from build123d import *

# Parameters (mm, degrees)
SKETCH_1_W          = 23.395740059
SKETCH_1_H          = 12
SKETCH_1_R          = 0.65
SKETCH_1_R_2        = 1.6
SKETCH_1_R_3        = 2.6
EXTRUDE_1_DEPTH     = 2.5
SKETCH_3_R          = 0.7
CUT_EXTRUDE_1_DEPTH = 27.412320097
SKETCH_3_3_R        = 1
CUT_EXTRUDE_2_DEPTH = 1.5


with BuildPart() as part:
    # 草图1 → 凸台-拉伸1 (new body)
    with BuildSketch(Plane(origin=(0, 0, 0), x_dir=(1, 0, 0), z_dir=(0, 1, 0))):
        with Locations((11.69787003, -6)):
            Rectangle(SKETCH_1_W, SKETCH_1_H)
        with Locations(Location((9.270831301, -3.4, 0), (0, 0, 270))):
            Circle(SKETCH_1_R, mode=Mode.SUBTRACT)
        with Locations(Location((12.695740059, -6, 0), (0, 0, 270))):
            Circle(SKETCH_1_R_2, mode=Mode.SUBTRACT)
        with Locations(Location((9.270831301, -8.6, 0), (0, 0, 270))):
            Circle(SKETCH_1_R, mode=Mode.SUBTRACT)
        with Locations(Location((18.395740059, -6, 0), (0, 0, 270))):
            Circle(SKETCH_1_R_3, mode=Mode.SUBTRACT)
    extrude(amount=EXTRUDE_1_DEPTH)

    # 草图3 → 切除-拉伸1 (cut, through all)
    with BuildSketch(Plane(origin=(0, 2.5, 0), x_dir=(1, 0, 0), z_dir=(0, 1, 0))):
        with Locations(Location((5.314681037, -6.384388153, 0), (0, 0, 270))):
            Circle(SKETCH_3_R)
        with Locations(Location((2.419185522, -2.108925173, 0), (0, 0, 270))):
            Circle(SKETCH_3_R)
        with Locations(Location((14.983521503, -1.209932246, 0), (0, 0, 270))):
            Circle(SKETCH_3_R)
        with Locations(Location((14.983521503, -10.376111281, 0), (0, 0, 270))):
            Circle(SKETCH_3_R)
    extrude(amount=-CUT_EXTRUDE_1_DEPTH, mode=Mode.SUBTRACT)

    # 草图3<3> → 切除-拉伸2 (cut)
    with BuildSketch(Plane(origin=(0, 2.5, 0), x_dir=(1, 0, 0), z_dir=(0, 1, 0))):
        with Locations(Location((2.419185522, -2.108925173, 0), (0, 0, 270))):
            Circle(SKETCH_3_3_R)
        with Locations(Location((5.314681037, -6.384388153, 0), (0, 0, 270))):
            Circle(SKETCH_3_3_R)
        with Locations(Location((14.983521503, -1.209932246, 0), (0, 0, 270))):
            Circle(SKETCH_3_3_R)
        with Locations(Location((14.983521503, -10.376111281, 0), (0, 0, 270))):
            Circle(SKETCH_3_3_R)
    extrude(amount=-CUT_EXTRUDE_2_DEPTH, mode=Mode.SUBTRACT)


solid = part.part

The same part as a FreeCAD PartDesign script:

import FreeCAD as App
import Part
import Sketcher

doc = App.newDocument("Part")
body = doc.addObject("PartDesign::Body", "Body")

sketch1 = body.newObject("Sketcher::SketchObject", "Sketch")
sketch1.AttachmentSupport = (doc.getObject("XZ_Plane"), [""])
sketch1.MapMode = "FlatFace"
sketch1.addGeometry(Part.LineSegment(App.Vector(0, 0, 0), App.Vector(0, 12, 0)), False)
sketch1.addGeometry(Part.LineSegment(App.Vector(0, 12, 0), App.Vector(23.4, 12, 0)), False)
sketch1.addGeometry(Part.LineSegment(App.Vector(23.4, 12, 0), App.Vector(23.4, 0, 0)), False)
sketch1.addGeometry(Part.LineSegment(App.Vector(23.4, 0, 0), App.Vector(0, 0, 0)), False)
sketch1.addGeometry(Part.Circle(App.Vector(9.3, 8.6, 0), App.Vector(0, 0, 1), 0.7), False)
sketch1.addGeometry(Part.Circle(App.Vector(12.7, 6, 0), App.Vector(0, 0, 1), 1.6), False)
sketch1.addGeometry(Part.Circle(App.Vector(18.4, 6, 0), App.Vector(0, 0, 1), 2.6), False)
sketch1.addGeometry(Part.Circle(App.Vector(9.3, 3.4, 0), App.Vector(0, 0, 1), 0.7), False)
sketch1.addConstraint(Sketcher.Constraint("Coincident", 0, 2, 1, 1))
sketch1.addConstraint(Sketcher.Constraint("Coincident", 1, 2, 2, 1))
sketch1.addConstraint(Sketcher.Constraint("Coincident", 2, 2, 3, 1))
sketch1.addConstraint(Sketcher.Constraint("Coincident", 3, 2, 0, 1))
sketch1.addConstraint(Sketcher.Constraint("Vertical", 0))
sketch1.addConstraint(Sketcher.Constraint("Horizontal", 1))
sketch1.addConstraint(Sketcher.Constraint("Vertical", 2))
sketch1.addConstraint(Sketcher.Constraint("Horizontal", 3))
sketch1.addConstraint(Sketcher.Constraint("Coincident", 3, 2, -1, 1))
sketch1.addConstraint(Sketcher.Constraint("Equal", 4, 7))
sketch1.addConstraint(Sketcher.Constraint("Horizontal", 5, 3, 6, 3))
sketch1.addConstraint(Sketcher.Constraint("Vertical", 4, 3, 7, 3))
sketch1.addConstraint(Sketcher.Constraint("Diameter", 4, 1.3))
sketch1.addConstraint(Sketcher.Constraint("Diameter", 5, 3.2))
sketch1.addConstraint(Sketcher.Constraint("Diameter", 6, 5.2))
sketch1.addConstraint(Sketcher.Constraint("DistanceY", 0, 1, 0, 2, 12.0))
sketch1.addConstraint(Sketcher.Constraint("DistanceY", -1, 1, 5, 3, 6.0))
sketch1.addConstraint(Sketcher.Constraint("DistanceX", 6, 3, 1, 2, 5.0))
sketch1.addConstraint(Sketcher.Constraint("DistanceY", -1, 1, 4, 3, 8.6))
sketch1.addConstraint(Sketcher.Constraint("DistanceY", -1, 1, 7, 3, 3.4))
sketch1.addConstraint(Sketcher.Constraint("DistanceX", 5, 3, 6, 3, 5.7))
sketch1.addConstraint(Sketcher.Constraint("DistanceX", 1, 1, 1, 2, 23.39574))
sketch1.addConstraint(Sketcher.Constraint("DistanceX", -1, 1, 4, 3, 9.270831))
pad1 = body.newObject("PartDesign::Pad", "Pad")
pad1.Profile = sketch1
pad1.Length = 2.5
pad1.Reversed = True

sketch2 = body.newObject("Sketcher::SketchObject", "Sketch001")
sketch2.AttachmentSupport = (doc.getObject("XZ_Plane"), [""])
sketch2.MapMode = "FlatFace"
sketch2.AttachmentOffset = App.Placement(App.Vector(0, 0, -2.5), App.Rotation())
sketch2.addGeometry(Part.Circle(App.Vector(5.3, 6.4, 0), App.Vector(0, 0, 1), 0.7), False)
sketch2.addGeometry(Part.Circle(App.Vector(2.4, 2.1, 0), App.Vector(0, 0, 1), 0.7), False)
sketch2.addGeometry(Part.Circle(App.Vector(15, 1.2, 0), App.Vector(0, 0, 1), 0.7), False)
sketch2.addGeometry(Part.Circle(App.Vector(15, 10.4, 0), App.Vector(0, 0, 1), 0.7), False)
sketch2.addConstraint(Sketcher.Constraint("Equal", 0, 1))
sketch2.addConstraint(Sketcher.Constraint("Equal", 1, 2))
sketch2.addConstraint(Sketcher.Constraint("Equal", 2, 3))
sketch2.addConstraint(Sketcher.Constraint("Vertical", 2, 3, 3, 3))
sketch2.addConstraint(Sketcher.Constraint("Diameter", 0, 1.4))
sketch2.addConstraint(Sketcher.Constraint("DistanceX", -1, 1, 0, 3, 5.314681))
sketch2.addConstraint(Sketcher.Constraint("DistanceY", -1, 1, 0, 3, 6.384388))
sketch2.addConstraint(Sketcher.Constraint("DistanceX", -1, 1, 2, 3, 14.983522))
sketch2.addConstraint(Sketcher.Constraint("DistanceY", -1, 1, 3, 3, 10.376111))
sketch2.addConstraint(Sketcher.Constraint("DistanceY", 2, 3, 3, 3, 9.166179))
sketch2.addConstraint(Sketcher.Constraint("DistanceX", -1, 1, 1, 3, 2.419186))
sketch2.addConstraint(Sketcher.Constraint("DistanceY", -1, 1, 1, 3, 2.108925))
pocket1 = body.newObject("PartDesign::Pocket", "Pocket")
pocket1.Profile = sketch2
pocket1.Type = "ThroughAll"
pocket1.Reversed = True

sketch3 = body.newObject("Sketcher::SketchObject", "Sketch002")
sketch3.AttachmentSupport = (doc.getObject("XZ_Plane"), [""])
sketch3.MapMode = "FlatFace"
sketch3.AttachmentOffset = App.Placement(App.Vector(0, 0, -2.5), App.Rotation())
sketch3.addGeometry(Part.Circle(App.Vector(2.4, 2.1, 0), App.Vector(0, 0, 1), 1), False)
sketch3.addGeometry(Part.Circle(App.Vector(5.3, 6.4, 0), App.Vector(0, 0, 1), 1), False)
sketch3.addGeometry(Part.Circle(App.Vector(15, 1.2, 0), App.Vector(0, 0, 1), 1), False)
sketch3.addGeometry(Part.Circle(App.Vector(15, 10.4, 0), App.Vector(0, 0, 1), 1), False)
sketch3.addConstraint(Sketcher.Constraint("Equal", 0, 1))
sketch3.addConstraint(Sketcher.Constraint("Equal", 1, 2))
sketch3.addConstraint(Sketcher.Constraint("Equal", 2, 3))
sketch3.addConstraint(Sketcher.Constraint("Vertical", 2, 3, 3, 3))
sketch3.addConstraint(Sketcher.Constraint("Diameter", 0, 2.0))
sketch3.addConstraint(Sketcher.Constraint("DistanceX", -1, 1, 1, 3, 5.314681))
sketch3.addConstraint(Sketcher.Constraint("DistanceY", -1, 1, 1, 3, 6.384388))
sketch3.addConstraint(Sketcher.Constraint("DistanceX", -1, 1, 2, 3, 14.983522))
sketch3.addConstraint(Sketcher.Constraint("DistanceY", -1, 1, 3, 3, 10.376111))
sketch3.addConstraint(Sketcher.Constraint("DistanceY", 2, 3, 3, 3, 9.166179))
sketch3.addConstraint(Sketcher.Constraint("DistanceX", -1, 1, 0, 3, 2.419186))
sketch3.addConstraint(Sketcher.Constraint("DistanceY", -1, 1, 0, 3, 2.108925))
pocket2 = body.newObject("PartDesign::Pocket", "Pocket001")
pocket2.Profile = sketch3
pocket2.Length = 1.5
pocket2.Reversed = True

doc.recompute()
